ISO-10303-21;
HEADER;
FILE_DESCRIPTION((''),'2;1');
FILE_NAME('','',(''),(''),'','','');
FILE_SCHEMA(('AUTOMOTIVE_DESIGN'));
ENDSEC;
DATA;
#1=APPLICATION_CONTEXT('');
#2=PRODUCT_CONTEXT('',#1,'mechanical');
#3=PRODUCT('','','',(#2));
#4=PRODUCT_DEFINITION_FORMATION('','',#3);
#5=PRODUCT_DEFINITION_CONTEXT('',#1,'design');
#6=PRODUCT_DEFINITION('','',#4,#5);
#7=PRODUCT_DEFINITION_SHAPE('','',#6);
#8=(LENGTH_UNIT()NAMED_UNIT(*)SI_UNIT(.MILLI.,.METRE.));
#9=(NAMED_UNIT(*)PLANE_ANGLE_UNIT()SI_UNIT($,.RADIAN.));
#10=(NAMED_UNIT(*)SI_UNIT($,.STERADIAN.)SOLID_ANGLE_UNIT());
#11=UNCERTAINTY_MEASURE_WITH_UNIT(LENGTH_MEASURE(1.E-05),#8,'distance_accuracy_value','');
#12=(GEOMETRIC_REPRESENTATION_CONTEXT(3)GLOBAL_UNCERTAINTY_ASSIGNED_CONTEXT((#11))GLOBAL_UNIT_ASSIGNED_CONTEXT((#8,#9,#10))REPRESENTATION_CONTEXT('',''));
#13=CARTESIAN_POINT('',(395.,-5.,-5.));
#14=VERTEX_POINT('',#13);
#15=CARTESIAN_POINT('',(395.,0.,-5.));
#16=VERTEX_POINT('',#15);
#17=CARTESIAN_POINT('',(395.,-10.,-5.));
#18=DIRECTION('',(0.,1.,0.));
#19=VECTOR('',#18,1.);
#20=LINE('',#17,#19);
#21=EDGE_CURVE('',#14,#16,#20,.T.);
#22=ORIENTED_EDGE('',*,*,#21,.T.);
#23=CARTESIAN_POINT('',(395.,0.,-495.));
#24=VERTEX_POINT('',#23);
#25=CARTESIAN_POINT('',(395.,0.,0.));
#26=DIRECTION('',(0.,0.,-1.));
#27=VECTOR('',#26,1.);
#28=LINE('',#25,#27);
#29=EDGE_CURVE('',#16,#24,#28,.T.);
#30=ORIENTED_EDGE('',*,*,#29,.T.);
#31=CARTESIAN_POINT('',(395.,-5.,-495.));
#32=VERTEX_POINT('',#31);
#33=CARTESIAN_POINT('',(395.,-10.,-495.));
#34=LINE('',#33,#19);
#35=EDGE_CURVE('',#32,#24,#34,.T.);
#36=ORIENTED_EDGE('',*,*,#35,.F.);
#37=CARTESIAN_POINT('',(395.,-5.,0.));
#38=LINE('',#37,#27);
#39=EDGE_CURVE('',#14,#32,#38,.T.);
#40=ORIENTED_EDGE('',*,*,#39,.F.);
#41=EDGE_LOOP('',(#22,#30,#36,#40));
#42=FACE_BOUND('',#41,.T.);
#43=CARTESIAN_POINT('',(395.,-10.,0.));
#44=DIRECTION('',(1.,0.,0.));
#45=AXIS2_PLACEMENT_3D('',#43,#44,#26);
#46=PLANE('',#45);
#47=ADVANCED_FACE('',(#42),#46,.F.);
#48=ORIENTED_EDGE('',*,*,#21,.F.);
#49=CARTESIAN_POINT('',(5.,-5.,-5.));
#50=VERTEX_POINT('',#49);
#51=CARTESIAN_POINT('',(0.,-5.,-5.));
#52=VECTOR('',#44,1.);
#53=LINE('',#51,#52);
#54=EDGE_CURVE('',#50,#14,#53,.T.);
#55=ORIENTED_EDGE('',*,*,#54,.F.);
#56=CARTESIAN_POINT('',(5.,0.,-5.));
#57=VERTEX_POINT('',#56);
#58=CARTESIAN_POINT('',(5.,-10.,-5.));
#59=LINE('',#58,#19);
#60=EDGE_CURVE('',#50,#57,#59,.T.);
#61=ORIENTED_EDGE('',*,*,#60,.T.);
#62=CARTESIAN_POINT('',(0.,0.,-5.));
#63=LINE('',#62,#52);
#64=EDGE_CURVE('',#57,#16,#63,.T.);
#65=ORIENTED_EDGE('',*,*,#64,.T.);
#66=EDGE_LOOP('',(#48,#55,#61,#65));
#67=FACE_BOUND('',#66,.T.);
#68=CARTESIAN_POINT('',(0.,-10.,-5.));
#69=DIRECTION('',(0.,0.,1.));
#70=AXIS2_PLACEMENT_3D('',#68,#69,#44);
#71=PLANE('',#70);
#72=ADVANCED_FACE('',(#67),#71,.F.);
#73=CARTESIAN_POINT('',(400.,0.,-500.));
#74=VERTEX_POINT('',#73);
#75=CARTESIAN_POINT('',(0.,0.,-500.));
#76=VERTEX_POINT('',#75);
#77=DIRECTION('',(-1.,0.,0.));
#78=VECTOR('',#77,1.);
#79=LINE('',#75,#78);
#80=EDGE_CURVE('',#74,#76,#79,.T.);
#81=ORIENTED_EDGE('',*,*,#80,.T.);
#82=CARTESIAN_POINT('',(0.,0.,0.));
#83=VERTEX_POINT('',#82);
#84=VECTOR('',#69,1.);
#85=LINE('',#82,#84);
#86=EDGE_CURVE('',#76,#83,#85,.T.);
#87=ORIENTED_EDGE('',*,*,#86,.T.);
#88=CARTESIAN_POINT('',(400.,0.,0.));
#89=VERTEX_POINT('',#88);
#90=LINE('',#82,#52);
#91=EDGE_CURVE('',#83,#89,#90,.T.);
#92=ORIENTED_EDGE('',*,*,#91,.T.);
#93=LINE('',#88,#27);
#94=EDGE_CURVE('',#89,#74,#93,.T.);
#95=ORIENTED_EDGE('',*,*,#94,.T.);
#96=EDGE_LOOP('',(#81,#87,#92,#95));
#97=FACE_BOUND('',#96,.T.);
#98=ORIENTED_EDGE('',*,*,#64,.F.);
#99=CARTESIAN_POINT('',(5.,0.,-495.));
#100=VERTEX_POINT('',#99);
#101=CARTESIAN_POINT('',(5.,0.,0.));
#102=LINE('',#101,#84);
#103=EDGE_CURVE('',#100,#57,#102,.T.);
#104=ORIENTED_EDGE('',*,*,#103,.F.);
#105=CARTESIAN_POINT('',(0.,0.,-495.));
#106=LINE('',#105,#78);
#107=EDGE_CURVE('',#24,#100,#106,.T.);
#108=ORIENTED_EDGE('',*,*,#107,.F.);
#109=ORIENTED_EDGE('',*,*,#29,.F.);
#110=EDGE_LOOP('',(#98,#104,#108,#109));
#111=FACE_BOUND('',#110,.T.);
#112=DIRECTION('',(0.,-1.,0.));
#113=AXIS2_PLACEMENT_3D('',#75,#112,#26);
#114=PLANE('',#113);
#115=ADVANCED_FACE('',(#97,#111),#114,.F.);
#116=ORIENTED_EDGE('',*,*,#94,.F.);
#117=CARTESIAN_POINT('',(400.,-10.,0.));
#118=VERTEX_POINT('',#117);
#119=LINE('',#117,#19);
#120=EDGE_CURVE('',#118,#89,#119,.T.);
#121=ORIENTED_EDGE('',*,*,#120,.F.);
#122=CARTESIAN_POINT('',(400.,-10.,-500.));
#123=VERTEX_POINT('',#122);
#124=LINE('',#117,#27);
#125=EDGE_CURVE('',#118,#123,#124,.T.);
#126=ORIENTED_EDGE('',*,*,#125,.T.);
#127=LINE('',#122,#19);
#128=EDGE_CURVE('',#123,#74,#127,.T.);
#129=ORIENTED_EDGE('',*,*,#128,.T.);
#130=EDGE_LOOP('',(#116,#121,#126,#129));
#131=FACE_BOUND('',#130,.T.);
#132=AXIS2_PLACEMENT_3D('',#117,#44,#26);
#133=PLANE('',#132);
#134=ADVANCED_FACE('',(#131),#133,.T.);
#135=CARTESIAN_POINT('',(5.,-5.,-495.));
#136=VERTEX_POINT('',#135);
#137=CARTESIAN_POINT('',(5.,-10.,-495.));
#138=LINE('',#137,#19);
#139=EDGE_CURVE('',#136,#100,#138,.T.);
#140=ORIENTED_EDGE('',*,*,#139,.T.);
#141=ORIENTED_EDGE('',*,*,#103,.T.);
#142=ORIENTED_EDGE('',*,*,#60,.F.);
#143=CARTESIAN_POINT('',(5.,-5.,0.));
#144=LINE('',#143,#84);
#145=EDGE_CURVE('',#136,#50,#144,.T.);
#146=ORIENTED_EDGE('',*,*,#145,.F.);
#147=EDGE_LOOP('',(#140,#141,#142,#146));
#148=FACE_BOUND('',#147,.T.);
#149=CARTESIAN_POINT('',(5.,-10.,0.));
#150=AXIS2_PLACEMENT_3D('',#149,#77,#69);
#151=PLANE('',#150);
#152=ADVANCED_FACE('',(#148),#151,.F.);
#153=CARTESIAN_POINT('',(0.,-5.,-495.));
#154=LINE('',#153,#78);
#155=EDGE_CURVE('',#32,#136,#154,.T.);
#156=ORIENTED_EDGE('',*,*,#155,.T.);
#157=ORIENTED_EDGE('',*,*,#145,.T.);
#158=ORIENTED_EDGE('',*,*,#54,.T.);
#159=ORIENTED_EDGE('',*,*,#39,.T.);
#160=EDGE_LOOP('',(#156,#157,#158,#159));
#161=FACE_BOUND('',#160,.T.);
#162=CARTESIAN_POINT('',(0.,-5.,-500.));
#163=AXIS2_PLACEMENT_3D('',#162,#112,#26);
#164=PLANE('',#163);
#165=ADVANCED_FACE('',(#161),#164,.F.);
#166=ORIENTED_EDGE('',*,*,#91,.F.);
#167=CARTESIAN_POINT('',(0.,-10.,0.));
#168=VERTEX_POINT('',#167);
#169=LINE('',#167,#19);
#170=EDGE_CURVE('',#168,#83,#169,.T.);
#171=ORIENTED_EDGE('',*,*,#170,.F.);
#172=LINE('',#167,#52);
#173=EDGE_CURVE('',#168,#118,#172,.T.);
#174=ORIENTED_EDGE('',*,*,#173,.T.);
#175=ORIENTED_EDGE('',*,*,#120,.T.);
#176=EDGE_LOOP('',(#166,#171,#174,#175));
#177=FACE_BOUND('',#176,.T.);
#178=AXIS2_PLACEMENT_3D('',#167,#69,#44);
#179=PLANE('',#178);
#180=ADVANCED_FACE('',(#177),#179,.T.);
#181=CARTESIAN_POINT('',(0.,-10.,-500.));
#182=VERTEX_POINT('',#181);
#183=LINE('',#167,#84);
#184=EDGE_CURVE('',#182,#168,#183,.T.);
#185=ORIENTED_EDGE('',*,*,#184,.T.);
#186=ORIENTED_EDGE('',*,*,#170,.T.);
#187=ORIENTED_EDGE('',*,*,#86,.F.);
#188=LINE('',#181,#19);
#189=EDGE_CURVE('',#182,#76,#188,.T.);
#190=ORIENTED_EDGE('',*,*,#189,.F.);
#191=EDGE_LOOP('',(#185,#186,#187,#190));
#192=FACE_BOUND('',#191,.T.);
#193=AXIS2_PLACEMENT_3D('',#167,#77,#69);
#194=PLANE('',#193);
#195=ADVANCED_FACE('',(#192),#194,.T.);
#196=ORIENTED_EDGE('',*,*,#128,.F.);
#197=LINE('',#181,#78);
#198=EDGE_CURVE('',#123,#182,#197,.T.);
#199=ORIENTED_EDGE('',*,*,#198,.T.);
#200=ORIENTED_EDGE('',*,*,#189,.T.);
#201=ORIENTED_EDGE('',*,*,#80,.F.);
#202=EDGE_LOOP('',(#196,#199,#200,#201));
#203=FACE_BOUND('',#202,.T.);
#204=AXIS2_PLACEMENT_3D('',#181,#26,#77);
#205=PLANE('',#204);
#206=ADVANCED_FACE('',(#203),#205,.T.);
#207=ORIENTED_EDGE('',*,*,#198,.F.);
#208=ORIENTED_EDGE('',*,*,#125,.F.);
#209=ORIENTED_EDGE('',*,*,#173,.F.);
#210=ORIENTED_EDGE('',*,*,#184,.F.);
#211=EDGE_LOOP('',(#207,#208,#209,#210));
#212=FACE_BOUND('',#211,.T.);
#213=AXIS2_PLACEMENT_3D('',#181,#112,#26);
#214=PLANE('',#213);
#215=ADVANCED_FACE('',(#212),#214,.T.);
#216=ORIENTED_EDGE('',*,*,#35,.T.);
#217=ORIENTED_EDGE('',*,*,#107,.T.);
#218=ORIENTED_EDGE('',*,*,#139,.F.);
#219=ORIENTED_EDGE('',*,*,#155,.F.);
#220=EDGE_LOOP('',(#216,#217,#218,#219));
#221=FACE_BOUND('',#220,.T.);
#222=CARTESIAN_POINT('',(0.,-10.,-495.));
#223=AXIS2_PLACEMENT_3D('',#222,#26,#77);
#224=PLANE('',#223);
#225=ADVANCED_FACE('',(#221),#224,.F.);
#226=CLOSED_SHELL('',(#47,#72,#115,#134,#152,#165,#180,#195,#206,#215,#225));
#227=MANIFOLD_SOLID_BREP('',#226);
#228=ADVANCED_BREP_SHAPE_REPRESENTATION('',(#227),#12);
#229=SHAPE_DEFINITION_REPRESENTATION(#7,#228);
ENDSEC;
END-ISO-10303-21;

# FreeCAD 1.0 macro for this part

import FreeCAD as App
import Part
import Sketcher
Q = App.Units.Quantity


def faces_at(feature, points):
    """Names of the faces that lie closest to the given points."""
    faces = feature.Shape.Faces
    near = lambda p: min(range(len(faces)), key=lambda i: faces[i].distToShape(Part.Vertex(*p))[0])
    return sorted({f"Face{near(p) + 1}" for p in points})

doc = App.newDocument("Part")
body = doc.addObject("PartDesign::Body", "Body")

# Sketch on XZ plane
sketch1 = body.newObject("Sketcher::SketchObject", "Sketch")
sketch1.AttachmentSupport = (doc.getObject("XZ_Plane"), [""])
sketch1.MapMode = "FlatFace"
sketch1.addGeometry(Part.LineSegment(App.Vector(0, -500, 0), App.Vector(0, 0, 0)), False)
sketch1.addGeometry(Part.LineSegment(App.Vector(0, 0, 0), App.Vector(400, 0, 0)), False)
sketch1.addGeometry(Part.LineSegment(App.Vector(400, 0, 0), App.Vector(400, -500, 0)), False)
sketch1.addGeometry(Part.LineSegment(App.Vector(400, -500, 0), App.Vector(0, -500, 0)), False)
sketch1.addConstraint(Sketcher.Constraint("Coincident", 0, 2, 1, 1))
sketch1.addConstraint(Sketcher.Constraint("Coincident", 1, 2, 2, 1))
sketch1.addConstraint(Sketcher.Constraint("Coincident", 2, 2, 3, 1))
sketch1.addConstraint(Sketcher.Constraint("Coincident", 3, 2, 0, 1))
sketch1.addConstraint(Sketcher.Constraint("Vertical", 0))
sketch1.addConstraint(Sketcher.Constraint("Horizontal", 1))
sketch1.addConstraint(Sketcher.Constraint("Vertical", 2))
sketch1.addConstraint(Sketcher.Constraint("Horizontal", 3))
sketch1.addConstraint(Sketcher.Constraint("Coincident", 0, 2, -1, 1))
sketch1.addConstraint(Sketcher.Constraint("DistanceX", 1, 1, 1, 2, Q("400 mm")))
sketch1.addConstraint(Sketcher.Constraint("DistanceY", 0, 1, 0, 2, Q("500 mm")))
pad1 = body.newObject("PartDesign::Pad", "Pad")
pad1.Profile = sketch1
pad1.Length = 10
doc.recompute()

thickness = body.newObject("PartDesign::Thickness", "Thickness")
thickness.Base = (pad1, faces_at(pad1, [(200, 0, -250)]))
thickness.Value = 5
thickness.Reversed = True
thickness.Join = "Intersection"

doc.recompute()
